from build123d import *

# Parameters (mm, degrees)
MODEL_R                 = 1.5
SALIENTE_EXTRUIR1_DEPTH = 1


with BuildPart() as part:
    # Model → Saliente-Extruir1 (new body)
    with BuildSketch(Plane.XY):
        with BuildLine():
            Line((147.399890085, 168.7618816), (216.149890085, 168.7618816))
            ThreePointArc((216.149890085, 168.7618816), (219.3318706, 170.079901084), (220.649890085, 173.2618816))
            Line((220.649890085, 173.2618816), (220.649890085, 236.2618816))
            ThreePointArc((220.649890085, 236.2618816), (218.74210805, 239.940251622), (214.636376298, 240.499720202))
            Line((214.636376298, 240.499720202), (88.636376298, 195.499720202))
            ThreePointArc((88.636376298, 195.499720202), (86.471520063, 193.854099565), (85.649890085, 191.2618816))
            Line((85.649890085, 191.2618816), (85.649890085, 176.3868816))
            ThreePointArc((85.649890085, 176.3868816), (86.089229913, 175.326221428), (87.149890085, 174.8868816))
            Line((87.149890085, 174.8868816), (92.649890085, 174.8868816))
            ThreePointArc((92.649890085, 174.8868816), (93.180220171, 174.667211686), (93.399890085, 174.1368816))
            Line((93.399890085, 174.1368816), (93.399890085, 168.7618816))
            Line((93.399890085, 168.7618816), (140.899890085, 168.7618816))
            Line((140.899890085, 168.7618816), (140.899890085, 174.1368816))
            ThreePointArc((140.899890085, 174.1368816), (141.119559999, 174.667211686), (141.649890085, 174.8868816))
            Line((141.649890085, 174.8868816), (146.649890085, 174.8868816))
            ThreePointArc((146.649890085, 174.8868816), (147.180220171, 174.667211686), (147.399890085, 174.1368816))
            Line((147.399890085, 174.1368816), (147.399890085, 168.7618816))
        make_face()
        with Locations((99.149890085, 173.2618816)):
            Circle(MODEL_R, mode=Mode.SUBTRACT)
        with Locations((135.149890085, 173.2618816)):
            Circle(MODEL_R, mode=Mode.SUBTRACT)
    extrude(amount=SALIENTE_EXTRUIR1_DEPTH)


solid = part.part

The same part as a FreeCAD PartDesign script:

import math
import FreeCAD as App
import Part
import Sketcher

V = App.Vector
Q = App.Units.Quantity

doc = App.newDocument("Part")
body = doc.addObject("PartDesign::Body", "Body")

# Sketch on XY plane
sketch1 = doc.addObject("Sketcher::SketchObject", "Sketch")
body.addObject(sketch1)
sketch1.AttachmentSupport = (doc.XY_Plane, [""])
sketch1.MapMode = "FlatFace"
sketch1.addGeometry(Part.LineSegment(V(147.39989, 168.761882, 0), V(216.14989, 168.761882, 0)), False)
sketch1.addGeometry(Part.ArcOfCircle(Part.Circle(V(216.14989, 173.261882, 0), V(0, 0, 1), 4.5), math.radians(-90), math.radians(0)), False)
sketch1.addGeometry(Part.LineSegment(V(220.64989, 173.261882, 0), V(220.64989, 236.261882, 0)), False)
sketch1.addGeometry(Part.ArcOfCircle(Part.Circle(V(216.14989, 236.261882, 0), V(0, 0, 1), 4.5), math.radians(0), math.radians(109.653824)), False)
sketch1.addGeometry(Part.LineSegment(V(214.636376, 240.49972, 0), V(88.636376, 195.49972, 0)), False)
sketch1.addGeometry(Part.ArcOfCircle(Part.Circle(V(90.14989, 191.261882, 0), V(0, 0, 1), 4.5), math.radians(109.653824), math.radians(180)), False)
sketch1.addGeometry(Part.LineSegment(V(85.64989, 191.261882, 0), V(85.64989, 176.386882, 0)), False)
sketch1.addGeometry(Part.ArcOfCircle(Part.Circle(V(87.14989, 176.386882, 0), V(0, 0, 1), 1.5), math.radians(180), math.radians(270)), False)
sketch1.addGeometry(Part.LineSegment(V(87.14989, 174.886882, 0), V(92.64989, 174.886882, 0)), False)
sketch1.addGeometry(Part.ArcOfCircle(Part.Circle(V(92.64989, 174.136882, 0), V(0, 0, 1), 0.75), math.radians(0), math.radians(90)), False)
sketch1.addGeometry(Part.LineSegment(V(93.39989, 174.136882, 0), V(93.39989, 168.761882, 0)), False)
sketch1.addGeometry(Part.LineSegment(V(93.39989, 168.761882, 0), V(140.89989, 168.761882, 0)), False)
sketch1.addGeometry(Part.LineSegment(V(140.89989, 168.761882, 0), V(140.89989, 174.136882, 0)), False)
sketch1.addGeometry(Part.ArcOfCircle(Part.Circle(V(141.64989, 174.136882, 0), V(0, 0, 1), 0.75), math.radians(90), math.radians(180)), False)
sketch1.addGeometry(Part.LineSegment(V(141.64989, 174.886882, 0), V(146.64989, 174.886882, 0)), False)
sketch1.addGeometry(Part.ArcOfCircle(Part.Circle(V(146.64989, 174.136882, 0), V(0, 0, 1), 0.75), math.radians(0), math.radians(90)), False)
sketch1.addGeometry(Part.LineSegment(V(147.39989, 174.136882, 0), V(147.39989, 168.761882, 0)), False)
sketch1.addGeometry(Part.Circle(V(99.14989, 173.261882, 0), V(0, 0, 1), 1.5), False)
sketch1.addGeometry(Part.Circle(V(135.14989, 173.261882, 0), V(0, 0, 1), 1.5), False)
sketch1.addConstraint(Sketcher.Constraint("Tangent", 0, 2, 1, 1))
sketch1.addConstraint(Sketcher.Constraint("Tangent", 1, 2, 2, 1))
sketch1.addConstraint(Sketcher.Constraint("Tangent", 2, 2, 3, 1))
sketch1.addConstraint(Sketcher.Constraint("Tangent", 3, 2, 4, 1))
sketch1.addConstraint(Sketcher.Constraint("Tangent", 4, 2, 5, 1))
sketch1.addConstraint(Sketcher.Constraint("Tangent", 5, 2, 6, 1))
sketch1.addConstraint(Sketcher.Constraint("Tangent", 6, 2, 7, 1))
sketch1.addConstraint(Sketcher.Constraint("Tangent", 7, 2, 8, 1))
sketch1.addConstraint(Sketcher.Constraint("Tangent", 8, 2, 9, 2))
sketch1.addConstraint(Sketcher.Constraint("Tangent", 9, 1, 10, 1))
sketch1.addConstraint(Sketcher.Constraint("Coincident", 10, 2, 11, 1))
sketch1.addConstraint(Sketcher.Constraint("Coincident", 11, 2, 12, 1))
sketch1.addConstraint(Sketcher.Constraint("Tangent", 12, 2, 13, 2))
sketch1.addConstraint(Sketcher.Constraint("Tangent", 13, 1, 14, 1))
sketch1.addConstraint(Sketcher.Constraint("Tangent", 14, 2, 15, 2))
sketch1.addConstraint(Sketcher.Constraint("Tangent", 15, 1, 16, 1))
sketch1.addConstraint(Sketcher.Constraint("Coincident", 16, 2, 0, 1))
sketch1.addConstraint(Sketcher.Constraint("Horizontal", 0))
sketch1.addConstraint(Sketcher.Constraint("Vertical", 2))
sketch1.addConstraint(Sketcher.Constraint("Vertical", 6))
sketch1.addConstraint(Sketcher.Constraint("Horizontal", 8))
sketch1.addConstraint(Sketcher.Constraint("Vertical", 10))
sketch1.addConstraint(Sketcher.Constraint("Horizontal", 11))
sketch1.addConstraint(Sketcher.Constraint("Vertical", 12))
sketch1.addConstraint(Sketcher.Constraint("Horizontal", 14))
sketch1.addConstraint(Sketcher.Constraint("Vertical", 16))
sketch1.addConstraint(Sketcher.Constraint("Equal", 1, 3))
sketch1.addConstraint(Sketcher.Constraint("Equal", 3, 5))
sketch1.addConstraint(Sketcher.Constraint("Equal", 9, 13))
sketch1.addConstraint(Sketcher.Constraint("Equal", 13, 15))
sketch1.addConstraint(Sketcher.Constraint("Equal", 7, 17))
sketch1.addConstraint(Sketcher.Constraint("Equal", 17, 18))
sketch1.addConstraint(Sketcher.Constraint("Horizontal", 9, 3, 13, 3))
sketch1.addConstraint(Sketcher.Constraint("Horizontal", 1, 3, 17, 3))
sketch1.addConstraint(Sketcher.Constraint("Horizontal", 17, 3, 18, 3))
sketch1.addConstraint(Sketcher.Constraint("Horizontal", 0, 2, 10, 2))
sketch1.addConstraint(Sketcher.Constraint("Diameter", 17, Q("3 mm")))
sketch1.addConstraint(Sketcher.Constraint("Radius", 1, Q("4.5 mm")))
sketch1.addConstraint(Sketcher.Constraint("DistanceX", 14, 1, 14, 2, Q("5 mm")))
sketch1.addConstraint(Sketcher.Constraint("DistanceY", 2, 1, 2, 2, Q("63 mm")))
sketch1.addConstraint(Sketcher.Constraint("Radius", 9, Q("0.75 mm")))
sketch1.addConstraint(Sketcher.Constraint("DistanceX", 8, 1, 8, 2, Q("5.5 mm")))
sketch1.addConstraint(Sketcher.Constraint("DistanceX", 11, 1, 11, 2, Q("47.5 mm")))
sketch1.addConstraint(Sketcher.Constraint("DistanceX", 5, 3, 1, 3, Q("126 mm")))
sketch1.addConstraint(Sketcher.Constraint("DistanceY", 1, 3, 5, 3, Q("18 mm")))
sketch1.addConstraint(Sketcher.Constraint("DistanceX", 7, 3, 17, 3, Q("12 mm")))
sketch1.addConstraint(Sketcher.Constraint("DistanceX", 17, 3, 18, 3, Q("36 mm")))
sketch1.addConstraint(Sketcher.Constraint("DistanceY", 6, 2, 6, 1, Q("14.875 mm")))
sketch1.addConstraint(Sketcher.Constraint("DistanceX", -1, 1, 1, 3, Q("216.14989 mm")))
sketch1.addConstraint(Sketcher.Constraint("DistanceY", -1, 1, 1, 3, Q("173.261882 mm")))
pad1 = doc.addObject("PartDesign::Pad", "Pad")
body.addObject(pad1)
pad1.Profile = sketch1
pad1.Length = 1

doc.recompute()
